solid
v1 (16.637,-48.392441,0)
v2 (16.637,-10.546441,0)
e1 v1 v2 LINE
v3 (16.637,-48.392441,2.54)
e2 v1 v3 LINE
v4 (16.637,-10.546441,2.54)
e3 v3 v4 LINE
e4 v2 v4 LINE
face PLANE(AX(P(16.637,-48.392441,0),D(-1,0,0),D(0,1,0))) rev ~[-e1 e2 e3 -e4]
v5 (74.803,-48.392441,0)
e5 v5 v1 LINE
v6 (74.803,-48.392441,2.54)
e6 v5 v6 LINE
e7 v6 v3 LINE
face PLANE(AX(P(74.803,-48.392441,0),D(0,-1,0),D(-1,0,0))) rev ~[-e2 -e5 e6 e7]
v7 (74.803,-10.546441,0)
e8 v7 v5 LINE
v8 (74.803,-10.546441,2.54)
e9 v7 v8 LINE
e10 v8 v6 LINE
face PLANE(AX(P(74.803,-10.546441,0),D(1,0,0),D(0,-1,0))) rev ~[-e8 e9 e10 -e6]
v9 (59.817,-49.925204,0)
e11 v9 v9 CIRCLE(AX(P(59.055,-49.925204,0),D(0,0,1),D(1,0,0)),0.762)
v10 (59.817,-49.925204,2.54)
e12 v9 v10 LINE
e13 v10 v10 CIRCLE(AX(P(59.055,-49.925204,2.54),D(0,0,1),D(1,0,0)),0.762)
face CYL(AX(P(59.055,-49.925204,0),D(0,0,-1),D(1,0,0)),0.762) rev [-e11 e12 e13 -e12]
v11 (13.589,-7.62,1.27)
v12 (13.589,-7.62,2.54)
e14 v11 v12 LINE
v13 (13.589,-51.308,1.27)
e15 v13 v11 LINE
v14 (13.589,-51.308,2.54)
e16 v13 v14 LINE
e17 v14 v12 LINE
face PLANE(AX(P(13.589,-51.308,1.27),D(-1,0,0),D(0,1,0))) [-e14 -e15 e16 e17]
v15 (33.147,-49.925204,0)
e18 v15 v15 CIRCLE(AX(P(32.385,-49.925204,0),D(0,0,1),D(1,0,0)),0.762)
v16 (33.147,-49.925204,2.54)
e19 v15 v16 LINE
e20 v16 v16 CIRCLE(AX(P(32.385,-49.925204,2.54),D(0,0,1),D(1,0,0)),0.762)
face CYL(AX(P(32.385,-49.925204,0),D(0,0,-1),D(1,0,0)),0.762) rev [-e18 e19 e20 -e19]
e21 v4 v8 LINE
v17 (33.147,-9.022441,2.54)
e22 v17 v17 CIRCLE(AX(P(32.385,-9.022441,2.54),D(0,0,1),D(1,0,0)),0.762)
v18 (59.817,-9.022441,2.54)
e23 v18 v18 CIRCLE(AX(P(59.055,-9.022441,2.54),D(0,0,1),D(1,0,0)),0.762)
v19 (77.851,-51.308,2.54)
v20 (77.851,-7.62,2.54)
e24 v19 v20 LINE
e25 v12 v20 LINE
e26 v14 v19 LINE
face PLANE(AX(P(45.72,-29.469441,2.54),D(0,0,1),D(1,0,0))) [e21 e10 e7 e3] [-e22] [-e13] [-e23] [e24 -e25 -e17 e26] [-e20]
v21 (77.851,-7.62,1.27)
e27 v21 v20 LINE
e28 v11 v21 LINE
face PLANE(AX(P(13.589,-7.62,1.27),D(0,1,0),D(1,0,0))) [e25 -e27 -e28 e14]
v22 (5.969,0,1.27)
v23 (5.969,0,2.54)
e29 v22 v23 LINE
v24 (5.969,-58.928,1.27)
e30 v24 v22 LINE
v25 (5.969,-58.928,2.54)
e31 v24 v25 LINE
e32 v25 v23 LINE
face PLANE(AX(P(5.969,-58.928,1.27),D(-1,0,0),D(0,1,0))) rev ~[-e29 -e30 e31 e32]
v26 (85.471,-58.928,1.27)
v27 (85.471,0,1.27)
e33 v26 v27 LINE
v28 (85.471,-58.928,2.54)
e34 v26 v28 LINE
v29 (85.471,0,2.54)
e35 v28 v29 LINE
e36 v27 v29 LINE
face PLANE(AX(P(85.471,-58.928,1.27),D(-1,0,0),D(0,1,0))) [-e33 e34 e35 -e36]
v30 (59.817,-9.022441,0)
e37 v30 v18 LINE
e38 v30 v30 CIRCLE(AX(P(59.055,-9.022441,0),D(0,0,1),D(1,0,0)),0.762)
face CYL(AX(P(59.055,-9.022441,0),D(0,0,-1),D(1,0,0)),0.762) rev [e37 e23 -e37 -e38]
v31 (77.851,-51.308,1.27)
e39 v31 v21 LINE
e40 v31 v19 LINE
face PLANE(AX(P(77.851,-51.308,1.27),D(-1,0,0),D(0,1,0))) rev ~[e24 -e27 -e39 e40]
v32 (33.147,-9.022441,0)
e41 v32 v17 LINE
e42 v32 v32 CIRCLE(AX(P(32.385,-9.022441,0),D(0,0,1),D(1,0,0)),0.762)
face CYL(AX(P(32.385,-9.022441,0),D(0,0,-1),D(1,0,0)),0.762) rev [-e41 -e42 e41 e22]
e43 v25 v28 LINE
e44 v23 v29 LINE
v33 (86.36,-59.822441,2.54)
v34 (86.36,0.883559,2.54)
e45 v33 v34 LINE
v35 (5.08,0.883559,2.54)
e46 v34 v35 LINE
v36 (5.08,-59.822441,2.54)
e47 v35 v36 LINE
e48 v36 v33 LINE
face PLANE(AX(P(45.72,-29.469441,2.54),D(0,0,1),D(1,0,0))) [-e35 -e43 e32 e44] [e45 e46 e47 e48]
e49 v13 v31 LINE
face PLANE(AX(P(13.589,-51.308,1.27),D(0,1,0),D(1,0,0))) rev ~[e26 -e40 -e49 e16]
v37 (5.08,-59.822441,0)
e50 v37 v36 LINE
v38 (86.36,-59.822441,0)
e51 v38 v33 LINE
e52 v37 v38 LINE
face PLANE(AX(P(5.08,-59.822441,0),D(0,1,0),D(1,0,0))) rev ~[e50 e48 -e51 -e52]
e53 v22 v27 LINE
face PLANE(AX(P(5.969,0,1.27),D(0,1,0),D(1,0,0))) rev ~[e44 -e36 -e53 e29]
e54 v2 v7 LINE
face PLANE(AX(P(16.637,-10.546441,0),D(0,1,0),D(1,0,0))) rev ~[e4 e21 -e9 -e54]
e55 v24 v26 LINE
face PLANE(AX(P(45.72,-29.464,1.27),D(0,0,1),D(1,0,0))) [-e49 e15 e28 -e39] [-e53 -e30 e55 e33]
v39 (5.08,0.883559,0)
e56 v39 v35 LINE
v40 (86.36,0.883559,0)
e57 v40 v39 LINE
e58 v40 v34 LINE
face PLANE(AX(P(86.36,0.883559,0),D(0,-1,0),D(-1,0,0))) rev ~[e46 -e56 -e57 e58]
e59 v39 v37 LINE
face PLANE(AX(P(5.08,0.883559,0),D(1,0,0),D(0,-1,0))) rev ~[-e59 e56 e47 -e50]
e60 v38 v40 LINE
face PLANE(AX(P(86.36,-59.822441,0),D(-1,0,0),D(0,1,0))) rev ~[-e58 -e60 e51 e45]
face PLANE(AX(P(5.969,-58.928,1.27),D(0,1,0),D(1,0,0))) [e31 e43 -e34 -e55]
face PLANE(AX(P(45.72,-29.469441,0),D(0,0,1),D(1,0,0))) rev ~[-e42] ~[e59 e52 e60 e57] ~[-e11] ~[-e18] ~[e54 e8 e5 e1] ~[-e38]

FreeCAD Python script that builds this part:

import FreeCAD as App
import Part
import Sketcher

V = App.Vector
Q = App.Units.Quantity


def add_polygon(sketch, points):
    """Adds a closed chain of lines whose ends are joined by coincident constraints."""
    first, n = sketch.GeometryCount, len(points)
    for a, b in zip(points, points[1:] + points[:1]):
        sketch.addGeometry(Part.LineSegment(App.Vector(*a, 0), App.Vector(*b, 0)), False)
    for i in range(n):
        sketch.addConstraint(Sketcher.Constraint("Coincident", first + i, 2, first + (i + 1) % n, 1))

doc = App.newDocument("Part")
body = doc.addObject("PartDesign::Body", "Body")

# Sketch on XY plane
sketch1 = doc.addObject("Sketcher::SketchObject", "Sketch")
body.addObject(sketch1)
sketch1.AttachmentSupport = (doc.XY_Plane, [""])
sketch1.MapMode = "FlatFace"
add_polygon(sketch1, [(86.36, 0.883559), (5.08, 0.883559), (5.08, -59.822441), (86.36, -59.822441)])  # lines 0-3
sketch1.addGeometry(Part.Circle(V(32.385, -49.925204, 0), V(0, 0, 1), 0.762), False)  # 4
sketch1.addGeometry(Part.Circle(V(59.055, -49.925204, 0), V(0, 0, 1), 0.762), False)  # 5
sketch1.addGeometry(Part.Circle(V(32.385, -9.022441, 0), V(0, 0, 1), 0.762), False)  # 6
add_polygon(sketch1, [(16.637, -48.392441), (16.637, -10.546441), (74.803, -10.546441), (74.803, -48.392441)])  # lines 7-10
sketch1.addGeometry(Part.Circle(V(59.055, -9.022441, 0), V(0, 0, 1), 0.762), False)  # 11
sketch1.addConstraint(Sketcher.Constraint("Horizontal", 0))
sketch1.addConstraint(Sketcher.Constraint("Vertical", 1))
sketch1.addConstraint(Sketcher.Constraint("Horizontal", 2))
sketch1.addConstraint(Sketcher.Constraint("Vertical", 3))
sketch1.addConstraint(Sketcher.Constraint("Vertical", 7))
sketch1.addConstraint(Sketcher.Constraint("Horizontal", 8))
sketch1.addConstraint(Sketcher.Constraint("Vertical", 9))
sketch1.addConstraint(Sketcher.Constraint("Horizontal", 10))
sketch1.addConstraint(Sketcher.Constraint("Equal", 4, 5))
sketch1.addConstraint(Sketcher.Constraint("Equal", 5, 6))
sketch1.addConstraint(Sketcher.Constraint("Equal", 6, 11))
sketch1.addConstraint(Sketcher.Constraint("Horizontal", 4, 3, 5, 3))
sketch1.addConstraint(Sketcher.Constraint("Horizontal", 6, 3, 11, 3))
sketch1.addConstraint(Sketcher.Constraint("Vertical", 4, 3, 6, 3))
sketch1.addConstraint(Sketcher.Constraint("Vertical", 5, 3, 11, 3))
sketch1.addConstraint(Sketcher.Constraint("Diameter", 4, Q("0.06 in")))
sketch1.addConstraint(Sketcher.Constraint("DistanceX", 0, 2, 0, 1, Q("3.2 in")))
sketch1.addConstraint(Sketcher.Constraint("DistanceY", 1, 2, 6, 3, Q("2 in")))
sketch1.addConstraint(Sketcher.Constraint("DistanceX", 8, 1, 8, 2, Q("2.29 in")))
sketch1.addConstraint(Sketcher.Constraint("DistanceY", 1, 2, 1, 1, Q("2.39 in")))
sketch1.addConstraint(Sketcher.Constraint("DistanceY", 7, 1, 7, 2, Q("1.49 in")))
sketch1.addConstraint(Sketcher.Constraint("DistanceX", -1, 1, 0, 2, Q("0.2 in")))
sketch1.addConstraint(Sketcher.Constraint("DistanceX", 4, 3, 5, 3, Q("1.05 in")))
sketch1.addConstraint(Sketcher.Constraint("DistanceX", 7, 2, 6, 3, Q("0.62 in")))
sketch1.addConstraint(Sketcher.Constraint("DistanceY", 7, 2, 6, 3, Q("0.06 in")))
sketch1.addConstraint(Sketcher.Constraint("DistanceX", -1, 1, 4, 3, Q("1.275 in")))
sketch1.addConstraint(Sketcher.Constraint("DistanceY", 6, 3, -1, 1, 9.022441))
sketch1.addConstraint(Sketcher.Constraint("DistanceY", 4, 3, -1, 1, 49.925204))
pad1 = doc.addObject("PartDesign::Pad", "Pad")
body.addObject(pad1)
pad1.Profile = sketch1
pad1.Length = Q("0.1 in")

# Sketch on XY plane
sketch2 = doc.addObject("Sketcher::SketchObject", "Sketch001")
body.addObject(sketch2)
sketch2.AttachmentSupport = (doc.XY_Plane, [""])
sketch2.MapMode = "FlatFace"
sketch2.AttachmentOffset = App.Placement(V(0, 0, 0.05 * 25.4), App.Rotation())
add_polygon(sketch2, [(5.969, 0), (5.969, -58.928), (85.471, -58.928), (85.471, 0)])  # lines 0-3
add_polygon(sketch2, [(77.851, -51.308), (13.589, -51.308), (13.589, -7.62), (77.851, -7.62)])  # lines 4-7
sketch2.addConstraint(Sketcher.Constraint("Vertical", 0))
sketch2.addConstraint(Sketcher.Constraint("Horizontal", 1))
sketch2.addConstraint(Sketcher.Constraint("Vertical", 2))
sketch2.addConstraint(Sketcher.Constraint("Horizontal", 3))
sketch2.addConstraint(Sketcher.Constraint("Horizontal", 4))
sketch2.addConstraint(Sketcher.Constraint("Vertical", 5))
sketch2.addConstraint(Sketcher.Constraint("Horizontal", 6))
sketch2.addConstraint(Sketcher.Constraint("Vertical", 7))
sketch2.addConstraint(Sketcher.Constraint("PointOnObject", 2, 2, -1))
sketch2.addConstraint(Sketcher.Constraint("DistanceX", 1, 1, 1, 2, Q("3.13 in")))
sketch2.addConstraint(Sketcher.Constraint("DistanceX", 4, 2, 4, 1, Q("2.53 in")))
sketch2.addConstraint(Sketcher.Constraint("DistanceY", 0, 2, 0, 1, Q("2.32 in")))
sketch2.addConstraint(Sketcher.Constraint("DistanceY", 5, 1, 5, 2, Q("1.72 in")))
sketch2.addConstraint(Sketcher.Constraint("DistanceY", 5, 2, -1, 1, Q("0.3 in")))
sketch2.addConstraint(Sketcher.Constraint("DistanceX", 0, 2, 4, 2, Q("0.3 in")))
sketch2.addConstraint(Sketcher.Constraint("DistanceX", -1, 1, 0, 2, Q("0.235 in")))
pocket1 = doc.addObject("PartDesign::Pocket", "Pocket")
body.addObject(pocket1)
pocket1.Profile = sketch2
pocket1.Length = Q("0.05 in")
pocket1.Reversed = True

doc.recompute()
